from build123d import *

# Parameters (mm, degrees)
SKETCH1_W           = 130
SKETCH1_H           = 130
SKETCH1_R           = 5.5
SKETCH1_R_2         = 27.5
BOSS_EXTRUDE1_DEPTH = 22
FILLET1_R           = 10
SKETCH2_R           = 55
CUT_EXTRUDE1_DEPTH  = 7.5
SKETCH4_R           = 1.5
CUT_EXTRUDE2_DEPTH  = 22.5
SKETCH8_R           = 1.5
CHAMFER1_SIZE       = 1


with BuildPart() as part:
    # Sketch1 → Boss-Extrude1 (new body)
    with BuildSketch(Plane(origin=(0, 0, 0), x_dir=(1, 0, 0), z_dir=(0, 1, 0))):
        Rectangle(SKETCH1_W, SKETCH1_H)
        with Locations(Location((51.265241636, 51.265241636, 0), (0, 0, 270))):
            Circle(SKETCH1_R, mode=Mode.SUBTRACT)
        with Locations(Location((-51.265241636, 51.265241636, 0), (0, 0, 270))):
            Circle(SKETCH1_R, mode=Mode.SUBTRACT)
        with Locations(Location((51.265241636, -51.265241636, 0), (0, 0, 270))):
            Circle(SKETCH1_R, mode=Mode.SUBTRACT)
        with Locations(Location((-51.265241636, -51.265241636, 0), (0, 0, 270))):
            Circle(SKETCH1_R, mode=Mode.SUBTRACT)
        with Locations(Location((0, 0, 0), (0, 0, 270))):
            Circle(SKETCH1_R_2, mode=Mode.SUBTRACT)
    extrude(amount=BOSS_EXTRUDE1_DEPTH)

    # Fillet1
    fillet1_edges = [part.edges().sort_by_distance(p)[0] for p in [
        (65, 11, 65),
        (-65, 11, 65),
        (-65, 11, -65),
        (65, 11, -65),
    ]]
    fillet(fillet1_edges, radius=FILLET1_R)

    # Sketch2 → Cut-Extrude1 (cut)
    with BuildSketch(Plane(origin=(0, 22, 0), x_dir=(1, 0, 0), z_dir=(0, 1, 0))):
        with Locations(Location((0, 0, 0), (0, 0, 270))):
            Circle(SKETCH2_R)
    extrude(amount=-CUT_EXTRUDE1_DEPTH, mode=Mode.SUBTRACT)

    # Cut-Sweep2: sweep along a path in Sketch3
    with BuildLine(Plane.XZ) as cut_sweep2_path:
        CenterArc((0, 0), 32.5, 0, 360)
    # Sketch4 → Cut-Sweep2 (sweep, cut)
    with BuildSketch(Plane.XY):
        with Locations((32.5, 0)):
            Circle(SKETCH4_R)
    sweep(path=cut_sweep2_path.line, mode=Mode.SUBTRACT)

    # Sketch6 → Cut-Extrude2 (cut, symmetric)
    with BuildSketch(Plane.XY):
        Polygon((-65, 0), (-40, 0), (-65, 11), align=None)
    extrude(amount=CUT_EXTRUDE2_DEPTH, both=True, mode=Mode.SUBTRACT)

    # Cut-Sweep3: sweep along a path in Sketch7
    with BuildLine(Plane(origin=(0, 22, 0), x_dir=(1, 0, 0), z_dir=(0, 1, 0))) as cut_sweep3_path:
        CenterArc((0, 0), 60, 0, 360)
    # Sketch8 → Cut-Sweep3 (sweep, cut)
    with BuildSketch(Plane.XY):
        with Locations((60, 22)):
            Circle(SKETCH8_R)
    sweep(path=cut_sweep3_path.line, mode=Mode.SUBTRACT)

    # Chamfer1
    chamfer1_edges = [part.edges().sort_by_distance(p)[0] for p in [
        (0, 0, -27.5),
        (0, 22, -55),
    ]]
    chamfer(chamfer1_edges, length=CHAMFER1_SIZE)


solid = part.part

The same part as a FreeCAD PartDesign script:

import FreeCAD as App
import Part
import Sketcher

V = App.Vector
Q = App.Units.Quantity


def edges_at(feature, points):
    """Names of the edges that pass closest to the given points."""
    edges = feature.Shape.Edges
    near = lambda p: min(range(len(edges)), key=lambda i: edges[i].distToShape(Part.Vertex(*p))[0])
    return sorted({f"Edge{near(p) + 1}" for p in points})

doc = App.newDocument("Part")
body = doc.addObject("PartDesign::Body", "Body")

# Sketch on XZ plane
sketch1 = body.newObject("Sketcher::SketchObject", "Sketch")
sketch1.AttachmentSupport = (doc.getObject("XZ_Plane"), [""])
sketch1.MapMode = "FlatFace"
sketch1.addGeometry([
    Part.LineSegment(V(-65, -65, 0), V(-65, 65, 0)),  # 0
    Part.LineSegment(V(-65, 65, 0), V(65, 65, 0)),  # 1
    Part.LineSegment(V(65, 65, 0), V(65, -65, 0)),  # 2
    Part.LineSegment(V(65, -65, 0), V(-65, -65, 0)),  # 3
    Part.Circle(V(-51, 51, 0), V(0, 0, 1), 6),  # 4
    Part.Circle(V(51, 51, 0), V(0, 0, 1), 6),  # 5
    Part.Circle(V(-51, -51, 0), V(0, 0, 1), 6),  # 6
    Part.Circle(V(0, 0, 0), V(0, 0, 1), 28),  # 7
    Part.Circle(V(51, -51, 0), V(0, 0, 1), 6),  # 8
], False)
sketch1.addConstraint([
    Sketcher.Constraint("Coincident", 0, 2, 1, 1),
    Sketcher.Constraint("Coincident", 1, 2, 2, 1),
    Sketcher.Constraint("Coincident", 2, 2, 3, 1),
    Sketcher.Constraint("Coincident", 3, 2, 0, 1),
    Sketcher.Constraint("Vertical", 0),
    Sketcher.Constraint("Horizontal", 1),
    Sketcher.Constraint("Vertical", 2),
    Sketcher.Constraint("Horizontal", 3),
    Sketcher.Constraint("Coincident", 7, 3, -1, 1),
    Sketcher.Constraint("Equal", 4, 5),
    Sketcher.Constraint("Equal", 5, 6),
    Sketcher.Constraint("Equal", 6, 8),
    Sketcher.Constraint("Symmetric", 5, 3, 6, 3, -1, 1),
    Sketcher.Constraint("Symmetric", 4, 3, 8, 3, -1, 1),
    Sketcher.Constraint("Symmetric", 0, 2, 2, 2, -1, 1),
    Sketcher.Constraint("Symmetric", 4, 3, 5, 3, -2),
    Sketcher.Constraint("Equal", 3, 0),
    Sketcher.Constraint("Diameter", 4, Q("11 mm")),
    Sketcher.Constraint("Diameter", 7, Q("55 mm")),
    Sketcher.Constraint("DistanceX", 1, 1, 1, 2, Q("130 mm")),
    Sketcher.Constraint("DistanceX", 4, 3, -1, 1, Q("51.265242 mm")),
    Sketcher.Constraint("DistanceY", -1, 1, 4, 3, Q("51.265242 mm")),
])
pad1 = body.newObject("PartDesign::Pad", "Pad")
pad1.Profile = sketch1
pad1.Length = 22
pad1.Reversed = True
doc.recompute()

fillet = body.newObject("PartDesign::Fillet", "Fillet")
fillet.Base = (pad1, edges_at(pad1, [
    (65, 11, 65),
    (-65, 11, 65),
    (-65, 11, -65),
    (65, 11, -65),
]))
fillet.Radius = 10

# Sketch on XZ plane
sketch2 = body.newObject("Sketcher::SketchObject", "Sketch001")
sketch2.AttachmentSupport = (doc.getObject("XZ_Plane"), [""])
sketch2.MapMode = "FlatFace"
sketch2.AttachmentOffset = App.Placement(V(0, 0, -22), App.Rotation())
sketch2.addGeometry(Part.Circle(V(0, 0, 0), V(0, 0, 1), 55), False)
sketch2.addConstraint([
    Sketcher.Constraint("Coincident", 0, 3, -1, 1),
    Sketcher.Constraint("Diameter", 0, Q("110 mm")),
])
pocket1 = body.newObject("PartDesign::Pocket", "Pocket")
pocket1.Profile = sketch2
pocket1.Length = 7.5
pocket1.Reversed = True

# Sketch on XY plane
sketch3 = body.newObject("Sketcher::SketchObject", "Sketch002")
sketch3.AttachmentSupport = (doc.getObject("XY_Plane"), [""])
sketch3.MapMode = "FlatFace"
sketch3.addGeometry(Part.Circle(V(32.5, 0, 0), V(0, 0, 1), 1.5), False)
sketch3.addConstraint([
    Sketcher.Constraint("PointOnObject", 0, 3, -1),
    Sketcher.Constraint("Diameter", 0, Q("3 mm")),
    Sketcher.Constraint("DistanceX", -1, 1, 0, 3, Q("32.5 mm")),
])

# Sketch on XZ plane
sketch4 = body.newObject("Sketcher::SketchObject", "Sketch003")
sketch4.AttachmentSupport = (doc.getObject("XZ_Plane"), [""])
sketch4.MapMode = "FlatFace"
sketch4.addGeometry(Part.Circle(V(0, 0, 0), V(0, 0, 1), 32), False)
sketch4.addConstraint([
    Sketcher.Constraint("Coincident", 0, 3, -1, 1),
    Sketcher.Constraint("Diameter", 0, Q("65 mm")),
])
doc.recompute()

subtractivepipe = body.newObject("PartDesign::SubtractivePipe", "SubtractivePipe")
subtractivepipe.Profile = sketch3
subtractivepipe.Spine = (sketch4, ["Edge1"])

# Sketch on XY plane
sketch5 = body.newObject("Sketcher::SketchObject", "Sketch004")
sketch5.AttachmentSupport = (doc.getObject("XY_Plane"), [""])
sketch5.MapMode = "FlatFace"
sketch5.addGeometry([
    Part.LineSegment(V(-65, 0, 0), V(-40, 0, 0)),
    Part.LineSegment(V(-40, 0, 0), V(-65, 11, 0)),
    Part.LineSegment(V(-65, 11, 0), V(-65, 0, 0)),
], False)
sketch5.addConstraint([
    Sketcher.Constraint("Coincident", 0, 2, 1, 1),
    Sketcher.Constraint("Coincident", 1, 2, 2, 1),
    Sketcher.Constraint("Coincident", 2, 2, 0, 1),
    Sketcher.Constraint("Horizontal", 0),
    Sketcher.Constraint("Vertical", 2),
    Sketcher.Constraint("PointOnObject", 0, 2, -1),
    Sketcher.Constraint("DistanceX", 0, 1, 0, 2, Q("25 mm")),
    Sketcher.Constraint("DistanceY", 2, 2, 2, 1, Q("11 mm")),
    Sketcher.Constraint("DistanceX", 0, 2, -1, 1, Q("40 mm")),
])
pocket2 = body.newObject("PartDesign::Pocket", "Pocket001")
pocket2.Profile = sketch5
pocket2.Length = 45
pocket2.Midplane = True

# Sketch on XY plane
sketch6 = body.newObject("Sketcher::SketchObject", "Sketch005")
sketch6.AttachmentSupport = (doc.getObject("XY_Plane"), [""])
sketch6.MapMode = "FlatFace"
sketch6.addGeometry(Part.Circle(V(60, 22, 0), V(0, 0, 1), 1.5), False)
sketch6.addConstraint([
    Sketcher.Constraint("Diameter", 0, Q("3 mm")),
    Sketcher.Constraint("DistanceX", -1, 1, 0, 3, Q("60 mm")),
    Sketcher.Constraint("DistanceY", -1, 1, 0, 3, Q("22 mm")),
])

# Sketch on XZ plane
sketch7 = body.newObject("Sketcher::SketchObject", "Sketch006")
sketch7.AttachmentSupport = (doc.getObject("XZ_Plane"), [""])
sketch7.MapMode = "FlatFace"
sketch7.AttachmentOffset = App.Placement(V(0, 0, -22), App.Rotation())
sketch7.addGeometry(Part.Circle(V(0, 0, 0), V(0, 0, 1), 60), False)
sketch7.addConstraint([
    Sketcher.Constraint("Coincident", 0, 3, -1, 1),
    Sketcher.Constraint("Diameter", 0, Q("120 mm")),
])
doc.recompute()

subtractivepipe2 = body.newObject("PartDesign::SubtractivePipe", "SubtractivePipe001")
subtractivepipe2.Profile = sketch6
subtractivepipe2.Spine = (sketch7, ["Edge1"])
doc.recompute()

chamfer = body.newObject("PartDesign::Chamfer", "Chamfer")
chamfer.Base = (subtractivepipe2, edges_at(subtractivepipe2, [(0, 0, -27.5), (0, 22, -55)]))
chamfer.Size = 1

doc.recompute()
